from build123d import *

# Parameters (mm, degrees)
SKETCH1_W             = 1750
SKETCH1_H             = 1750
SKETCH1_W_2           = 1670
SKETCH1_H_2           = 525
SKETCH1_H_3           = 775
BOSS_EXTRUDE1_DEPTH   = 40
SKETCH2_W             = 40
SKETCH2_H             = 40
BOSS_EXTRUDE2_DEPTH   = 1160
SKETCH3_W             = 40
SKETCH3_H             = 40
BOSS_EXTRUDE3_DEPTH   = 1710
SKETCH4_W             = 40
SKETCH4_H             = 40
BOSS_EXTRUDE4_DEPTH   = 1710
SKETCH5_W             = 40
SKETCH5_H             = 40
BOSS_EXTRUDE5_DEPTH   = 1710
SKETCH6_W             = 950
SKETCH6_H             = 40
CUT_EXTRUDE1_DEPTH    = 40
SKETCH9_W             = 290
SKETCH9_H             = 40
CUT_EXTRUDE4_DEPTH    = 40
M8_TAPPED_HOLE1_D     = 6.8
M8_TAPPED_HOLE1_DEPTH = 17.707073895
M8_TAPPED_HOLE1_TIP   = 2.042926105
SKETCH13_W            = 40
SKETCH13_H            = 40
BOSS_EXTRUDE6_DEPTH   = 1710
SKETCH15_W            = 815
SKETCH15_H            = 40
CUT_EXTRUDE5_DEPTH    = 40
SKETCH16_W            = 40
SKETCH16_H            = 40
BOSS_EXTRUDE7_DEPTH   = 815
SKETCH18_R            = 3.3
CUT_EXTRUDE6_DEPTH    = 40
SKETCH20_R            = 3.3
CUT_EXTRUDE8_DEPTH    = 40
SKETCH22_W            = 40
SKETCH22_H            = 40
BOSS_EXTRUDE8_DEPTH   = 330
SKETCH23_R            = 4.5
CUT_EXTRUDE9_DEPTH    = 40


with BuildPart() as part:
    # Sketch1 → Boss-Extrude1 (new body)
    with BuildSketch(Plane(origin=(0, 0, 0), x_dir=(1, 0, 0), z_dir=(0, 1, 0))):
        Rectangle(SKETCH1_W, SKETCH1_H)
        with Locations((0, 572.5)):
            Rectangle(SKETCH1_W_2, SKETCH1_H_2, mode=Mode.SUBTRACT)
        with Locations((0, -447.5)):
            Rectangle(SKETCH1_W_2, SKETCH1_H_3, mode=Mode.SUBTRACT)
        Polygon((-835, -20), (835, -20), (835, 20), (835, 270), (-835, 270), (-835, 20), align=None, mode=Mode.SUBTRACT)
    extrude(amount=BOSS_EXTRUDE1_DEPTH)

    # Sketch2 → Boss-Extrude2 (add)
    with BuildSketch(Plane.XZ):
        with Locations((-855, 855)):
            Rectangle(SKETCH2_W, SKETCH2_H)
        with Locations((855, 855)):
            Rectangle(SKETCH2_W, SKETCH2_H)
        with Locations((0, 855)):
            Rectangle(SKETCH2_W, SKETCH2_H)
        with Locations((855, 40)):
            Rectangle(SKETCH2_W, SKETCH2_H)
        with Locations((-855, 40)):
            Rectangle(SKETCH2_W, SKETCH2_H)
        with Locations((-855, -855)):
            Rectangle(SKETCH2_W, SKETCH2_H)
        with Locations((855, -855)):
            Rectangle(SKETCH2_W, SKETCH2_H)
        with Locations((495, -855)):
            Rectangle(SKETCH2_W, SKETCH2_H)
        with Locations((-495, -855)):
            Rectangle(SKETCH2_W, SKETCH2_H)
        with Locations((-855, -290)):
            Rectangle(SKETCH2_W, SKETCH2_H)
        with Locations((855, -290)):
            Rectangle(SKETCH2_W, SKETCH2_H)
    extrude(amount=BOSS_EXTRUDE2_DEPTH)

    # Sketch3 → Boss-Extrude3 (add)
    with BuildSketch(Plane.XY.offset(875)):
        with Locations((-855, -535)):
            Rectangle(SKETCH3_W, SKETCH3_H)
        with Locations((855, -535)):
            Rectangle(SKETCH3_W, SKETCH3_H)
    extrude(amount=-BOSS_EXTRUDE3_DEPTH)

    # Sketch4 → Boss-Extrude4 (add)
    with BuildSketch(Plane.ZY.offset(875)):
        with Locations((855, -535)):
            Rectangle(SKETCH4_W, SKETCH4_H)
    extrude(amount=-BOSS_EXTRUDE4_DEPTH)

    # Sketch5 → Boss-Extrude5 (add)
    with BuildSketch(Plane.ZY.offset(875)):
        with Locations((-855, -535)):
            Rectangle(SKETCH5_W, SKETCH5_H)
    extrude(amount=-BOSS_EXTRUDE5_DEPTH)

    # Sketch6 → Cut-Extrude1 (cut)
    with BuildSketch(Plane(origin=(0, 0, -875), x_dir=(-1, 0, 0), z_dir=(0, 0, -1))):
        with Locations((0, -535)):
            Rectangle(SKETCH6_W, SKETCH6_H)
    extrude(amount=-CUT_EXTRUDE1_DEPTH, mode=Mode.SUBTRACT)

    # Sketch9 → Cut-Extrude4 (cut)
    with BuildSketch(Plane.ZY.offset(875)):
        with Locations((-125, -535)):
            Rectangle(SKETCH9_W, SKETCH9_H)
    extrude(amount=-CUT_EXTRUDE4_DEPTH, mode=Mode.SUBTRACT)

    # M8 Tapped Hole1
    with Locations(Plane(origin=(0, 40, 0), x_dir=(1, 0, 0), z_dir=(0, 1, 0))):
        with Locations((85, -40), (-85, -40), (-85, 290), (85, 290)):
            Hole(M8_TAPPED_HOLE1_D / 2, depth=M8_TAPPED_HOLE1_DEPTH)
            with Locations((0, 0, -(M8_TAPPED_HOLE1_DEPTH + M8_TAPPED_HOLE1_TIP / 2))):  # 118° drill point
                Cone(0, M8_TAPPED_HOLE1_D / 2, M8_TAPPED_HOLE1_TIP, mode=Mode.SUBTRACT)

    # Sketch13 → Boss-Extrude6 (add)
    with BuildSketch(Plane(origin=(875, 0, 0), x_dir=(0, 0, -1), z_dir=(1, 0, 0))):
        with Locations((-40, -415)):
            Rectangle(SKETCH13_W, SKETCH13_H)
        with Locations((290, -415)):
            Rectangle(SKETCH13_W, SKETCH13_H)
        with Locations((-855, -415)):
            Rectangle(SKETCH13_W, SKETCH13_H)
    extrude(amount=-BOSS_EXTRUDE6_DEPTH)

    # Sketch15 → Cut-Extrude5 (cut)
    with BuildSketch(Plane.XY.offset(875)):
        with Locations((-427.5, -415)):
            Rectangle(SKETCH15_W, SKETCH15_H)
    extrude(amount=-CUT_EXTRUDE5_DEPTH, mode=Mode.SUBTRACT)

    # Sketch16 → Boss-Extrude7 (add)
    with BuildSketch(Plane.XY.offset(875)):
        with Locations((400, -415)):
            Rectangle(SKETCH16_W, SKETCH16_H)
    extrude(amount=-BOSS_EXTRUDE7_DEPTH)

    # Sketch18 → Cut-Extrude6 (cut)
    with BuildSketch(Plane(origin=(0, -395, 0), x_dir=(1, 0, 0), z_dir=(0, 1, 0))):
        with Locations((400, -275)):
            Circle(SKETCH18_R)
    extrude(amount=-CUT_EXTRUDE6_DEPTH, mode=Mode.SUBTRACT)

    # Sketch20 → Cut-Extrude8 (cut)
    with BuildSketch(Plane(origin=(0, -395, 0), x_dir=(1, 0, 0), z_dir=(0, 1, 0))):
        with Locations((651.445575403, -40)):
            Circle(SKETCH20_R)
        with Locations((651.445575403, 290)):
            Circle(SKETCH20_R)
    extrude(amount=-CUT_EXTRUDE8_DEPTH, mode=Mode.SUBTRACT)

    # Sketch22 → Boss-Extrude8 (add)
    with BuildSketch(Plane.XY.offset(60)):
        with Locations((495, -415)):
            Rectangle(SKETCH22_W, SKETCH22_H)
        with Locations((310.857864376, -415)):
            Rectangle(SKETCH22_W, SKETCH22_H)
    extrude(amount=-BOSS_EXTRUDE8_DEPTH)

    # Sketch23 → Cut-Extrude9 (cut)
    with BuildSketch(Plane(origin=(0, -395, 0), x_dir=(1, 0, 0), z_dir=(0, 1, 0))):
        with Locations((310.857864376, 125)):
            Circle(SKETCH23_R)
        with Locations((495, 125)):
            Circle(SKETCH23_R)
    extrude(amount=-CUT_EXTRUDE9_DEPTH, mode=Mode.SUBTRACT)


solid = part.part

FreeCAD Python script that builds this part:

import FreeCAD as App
import Part
import Sketcher
from FreeCAD import Vector


def add_polygon(sketch, points):
    """Adds a closed chain of lines whose ends are joined by coincident constraints."""
    first, n = sketch.GeometryCount, len(points)
    for a, b in zip(points, points[1:] + points[:1]):
        sketch.addGeometry(Part.LineSegment(App.Vector(*a, 0), App.Vector(*b, 0)), False)
    for i in range(n):
        sketch.addConstraint(Sketcher.Constraint("Coincident", first + i, 2, first + (i + 1) % n, 1))

doc = App.newDocument("Part")
body = doc.addObject("PartDesign::Body", "Body")

# Sketch on XZ plane
sketch1 = doc.addObject("Sketcher::SketchObject", "Sketch")
body.addObject(sketch1)
sketch1.AttachmentSupport = (doc.XZ_Plane, [""])
sketch1.MapMode = "FlatFace"
add_polygon(sketch1, [(-875, -875), (-875, 875), (875, 875), (875, -875)])  # lines 0-3
add_polygon(sketch1, [(835, 835), (-835, 835), (-835, 60), (835, 60)])  # lines 4-7
add_polygon(sketch1, [(835, 20), (-835, 20), (-835, -270), (835, -270)])  # lines 8-11
add_polygon(sketch1, [(835, -310), (-835, -310), (-835, -835), (835, -835)])  # lines 12-15
sketch1.addConstraint(Sketcher.Constraint("Vertical", 0))
sketch1.addConstraint(Sketcher.Constraint("Horizontal", 1))
sketch1.addConstraint(Sketcher.Constraint("Vertical", 2))
sketch1.addConstraint(Sketcher.Constraint("Horizontal", 3))
sketch1.addConstraint(Sketcher.Constraint("Horizontal", 4))
sketch1.addConstraint(Sketcher.Constraint("Vertical", 5))
sketch1.addConstraint(Sketcher.Constraint("Horizontal", 6))
sketch1.addConstraint(Sketcher.Constraint("Vertical", 7))
sketch1.addConstraint(Sketcher.Constraint("Horizontal", 8))
sketch1.addConstraint(Sketcher.Constraint("Vertical", 9))
sketch1.addConstraint(Sketcher.Constraint("Horizontal", 10))
sketch1.addConstraint(Sketcher.Constraint("Vertical", 11))
sketch1.addConstraint(Sketcher.Constraint("Horizontal", 12))
sketch1.addConstraint(Sketcher.Constraint("Vertical", 13))
sketch1.addConstraint(Sketcher.Constraint("Horizontal", 14))
sketch1.addConstraint(Sketcher.Constraint("Vertical", 15))
sketch1.addConstraint(Sketcher.Constraint("Symmetric", 0, 2, 2, 2, -1, 1))
sketch1.addConstraint(Sketcher.Constraint("Symmetric", 7, 2, 13, 2, -1, 1))
sketch1.addConstraint(Sketcher.Constraint("Vertical", 5, 2, 8, 2))
sketch1.addConstraint(Sketcher.Constraint("Vertical", 7, 2, 10, 2))
sketch1.addConstraint(Sketcher.Constraint("Vertical", 9, 2, 12, 2))
sketch1.addConstraint(Sketcher.Constraint("Vertical", 11, 2, 14, 2))
sketch1.addConstraint(Sketcher.Constraint("Equal", 3, 0))
sketch1.addConstraint(Sketcher.Constraint("DistanceX", 1, 1, 1, 2, 1750.0))
sketch1.addConstraint(Sketcher.Constraint("DistanceX", 4, 2, 4, 1, 1670.0))
sketch1.addConstraint(Sketcher.Constraint("DistanceY", 5, 2, 5, 1, 775.0))
sketch1.addConstraint(Sketcher.Constraint("DistanceY", 9, 2, 9, 1, 290.0))
sketch1.addConstraint(Sketcher.Constraint("DistanceY", 13, 2, 13, 1, 525.0))
sketch1.addConstraint(Sketcher.Constraint("DistanceY", -1, 1, 4, 2, 835.0))
sketch1.addConstraint(Sketcher.Constraint("DistanceY", -1, 1, 8, 2, 20.0))
pad1 = doc.addObject("PartDesign::Pad", "Pad")
body.addObject(pad1)
pad1.Profile = sketch1
pad1.Length = 40
pad1.Reversed = True

# Sketch on XZ plane
sketch2 = doc.addObject("Sketcher::SketchObject", "Sketch001")
body.addObject(sketch2)
sketch2.AttachmentSupport = (doc.XZ_Plane, [""])
sketch2.MapMode = "FlatFace"
add_polygon(sketch2, [(-875, 875), (-875, 835), (-835, 835), (-835, 875)])  # lines 0-3
add_polygon(sketch2, [(835, 875), (835, 835), (875, 835), (875, 875)])  # lines 4-7
add_polygon(sketch2, [(-20, 875), (-20, 835), (20, 835), (20, 875)])  # lines 8-11
add_polygon(sketch2, [(835, 60), (835, 20), (875, 20), (875, 60)])  # lines 12-15
add_polygon(sketch2, [(-875, 60), (-875, 20), (-835, 20), (-835, 60)])  # lines 16-19
add_polygon(sketch2, [(-875, -835), (-875, -875), (-835, -875), (-835, -835)])  # lines 20-23
add_polygon(sketch2, [(835, -835), (835, -875), (875, -875), (875, -835)])  # lines 24-27
add_polygon(sketch2, [(475, -835), (475, -875), (515, -875), (515, -835)])  # lines 28-31
add_polygon(sketch2, [(-515, -835), (-515, -875), (-475, -875), (-475, -835)])  # lines 32-35
add_polygon(sketch2, [(-875, -270), (-875, -310), (-835, -310), (-835, -270)])  # lines 36-39
add_polygon(sketch2, [(835, -270), (835, -310), (875, -310), (875, -270)])  # lines 40-43
sketch2.addConstraint(Sketcher.Constraint("Vertical", 0))
sketch2.addConstraint(Sketcher.Constraint("Horizontal", 1))
sketch2.addConstraint(Sketcher.Constraint("Vertical", 2))
sketch2.addConstraint(Sketcher.Constraint("Horizontal", 3))
sketch2.addConstraint(Sketcher.Constraint("Vertical", 4))
sketch2.addConstraint(Sketcher.Constraint("Horizontal", 5))
sketch2.addConstraint(Sketcher.Constraint("Vertical", 6))
sketch2.addConstraint(Sketcher.Constraint("Horizontal", 7))
sketch2.addConstraint(Sketcher.Constraint("Vertical", 8))
sketch2.addConstraint(Sketcher.Constraint("Horizontal", 9))
sketch2.addConstraint(Sketcher.Constraint("Vertical", 10))
sketch2.addConstraint(Sketcher.Constraint("Horizontal", 11))
sketch2.addConstraint(Sketcher.Constraint("Vertical", 12))
sketch2.addConstraint(Sketcher.Constraint("Horizontal", 13))
sketch2.addConstraint(Sketcher.Constraint("Vertical", 14))
sketch2.addConstraint(Sketcher.Constraint("Horizontal", 15))
sketch2.addConstraint(Sketcher.Constraint("Vertical", 16))
sketch2.addConstraint(Sketcher.Constraint("Horizontal", 17))
sketch2.addConstraint(Sketcher.Constraint("Vertical", 18))
sketch2.addConstraint(Sketcher.Constraint("Horizontal", 19))
sketch2.addConstraint(Sketcher.Constraint("Vertical", 20))
sketch2.addConstraint(Sketcher.Constraint("Horizontal", 21))
sketch2.addConstraint(Sketcher.Constraint("Vertical", 22))
sketch2.addConstraint(Sketcher.Constraint("Horizontal", 23))
sketch2.addConstraint(Sketcher.Constraint("Vertical", 24))
sketch2.addConstraint(Sketcher.Constraint("Horizontal", 25))
sketch2.addConstraint(Sketcher.Constraint("Vertical", 26))
sketch2.addConstraint(Sketcher.Constraint("Horizontal", 27))
sketch2.addConstraint(Sketcher.Constraint("Vertical", 28))
sketch2.addConstraint(Sketcher.Constraint("Horizontal", 29))
sketch2.addConstraint(Sketcher.Constraint("Vertical", 30))
sketch2.addConstraint(Sketcher.Constraint("Horizontal", 31))
sketch2.addConstraint(Sketcher.Constraint("Vertical", 32))
sketch2.addConstraint(Sketcher.Constraint("Horizontal", 33))
sketch2.addConstraint(Sketcher.Constraint("Vertical", 34))
sketch2.addConstraint(Sketcher.Constraint("Horizontal", 35))
sketch2.addConstraint(Sketcher.Constraint("Vertical", 36))
sketch2.addConstraint(Sketcher.Constraint("Horizontal", 37))
sketch2.addConstraint(Sketcher.Constraint("Vertical", 38))
sketch2.addConstraint(Sketcher.Constraint("Horizontal", 39))
sketch2.addConstraint(Sketcher.Constraint("Vertical", 40))
sketch2.addConstraint(Sketcher.Constraint("Horizontal", 41))
sketch2.addConstraint(Sketcher.Constraint("Vertical", 42))
sketch2.addConstraint(Sketcher.Constraint("Horizontal", 43))
sketch2.addConstraint(Sketcher.Constraint("Symmetric", 6, 2, 20, 2, -1, 1))
sketch2.addConstraint(Sketcher.Constraint("Symmetric", 4, 2, 22, 2, -1, 1))
sketch2.addConstraint(Sketcher.Constraint("Symmetric", 2, 2, 24, 2, -1, 1))
sketch2.addConstraint(Sketcher.Constraint("Symmetric", 0, 2, 26, 2, -1, 1))
sketch2.addConstraint(Sketcher.Constraint("Symmetric", 1, 2, 4, 2, -2))
sketch2.addConstraint(Sketcher.Constraint("Symmetric", 3, 2, 6, 2, -2))
sketch2.addConstraint(Sketcher.Constraint("Symmetric", 13, 2, 16, 2, -2))
sketch2.addConstraint(Sketcher.Constraint("Symmetric", 15, 2, 18, 2, -2))
sketch2.addConstraint(Sketcher.Constraint("Symmetric", 29, 2, 32, 2, -2))
sketch2.addConstraint(Sketcher.Constraint("Symmetric", 31, 2, 34, 2, -2))
sketch2.addConstraint(Sketcher.Constraint("Symmetric", 37, 2, 40, 2, -2))
sketch2.addConstraint(Sketcher.Constraint("Symmetric", 39, 2, 42, 2, -2))
sketch2.addConstraint(Sketcher.Constraint("Horizontal", 5, 2, 8, 2))
sketch2.addConstraint(Sketcher.Constraint("Horizontal", 7, 2, 10, 2))
sketch2.addConstraint(Sketcher.Constraint("Horizontal", 25, 2, 28, 2))
sketch2.addConstraint(Sketcher.Constraint("Horizontal", 27, 2, 30, 2))
sketch2.addConstraint(Sketcher.Constraint("Vertical", 7, 2, 12, 2))
sketch2.addConstraint(Sketcher.Constraint("Vertical", 6, 2, 13, 2))
sketch2.addConstraint(Sketcher.Constraint("Vertical", 23, 2, 36, 2))
sketch2.addConstraint(Sketcher.Constraint("Vertical", 22, 2, 37, 2))
sketch2.addConstraint(Sketcher.Constraint("Equal", 7, 9))
sketch2.addConstraint(Sketcher.Constraint("Equal", 27, 29))
sketch2.addConstraint(Sketcher.Constraint("Equal", 43, 0))
sketch2.addConstraint(Sketcher.Constraint("Equal", 10, 12))
sketch2.addConstraint(Sketcher.Constraint("Equal", 34, 36))
sketch2.addConstraint(Sketcher.Constraint("DistanceX", 1, 1, 1, 2, 40.0))
sketch2.addConstraint(Sketcher.Constraint("DistanceX", 0, 2, -1, 1, 875.0))
sketch2.addConstraint(Sketcher.Constraint("DistanceY", -1, 1, 0, 2, 835.0))
sketch2.addConstraint(Sketcher.Constraint("DistanceX", 8, 2, -1, 1, 20.0))
sketch2.addConstraint(Sketcher.Constraint("DistanceY", -1, 1, 12, 2, 20.0))
sketch2.addConstraint(Sketcher.Constraint("DistanceX", -1, 1, 28, 2, 475.0))
sketch2.addConstraint(Sketcher.Constraint("DistanceY", 36, 2, -1, 1, 310.0))
pad2 = doc.addObject("PartDesign::Pad", "Pad001")
body.addObject(pad2)
pad2.Profile = sketch2
pad2.Length = 1160

# Sketch on XY plane
sketch3 = doc.addObject("Sketcher::SketchObject", "Sketch002")
body.addObject(sketch3)
sketch3.AttachmentSupport = (doc.XY_Plane, [""])
sketch3.MapMode = "FlatFace"
sketch3.AttachmentOffset = App.Placement(Vector(0, 0, 875), App.Rotation())
add_polygon(sketch3, [(-875, -515), (-875, -555), (-835, -555), (-835, -515)])  # lines 0-3
add_polygon(sketch3, [(835, -515), (835, -555), (875, -555), (875, -515)])  # lines 4-7
sketch3.addConstraint(Sketcher.Constraint("Vertical", 0))
sketch3.addConstraint(Sketcher.Constraint("Horizontal", 1))
sketch3.addConstraint(Sketcher.Constraint("Vertical", 2))
sketch3.addConstraint(Sketcher.Constraint("Horizontal", 3))
sketch3.addConstraint(Sketcher.Constraint("Vertical", 4))
sketch3.addConstraint(Sketcher.Constraint("Horizontal", 5))
sketch3.addConstraint(Sketcher.Constraint("Vertical", 6))
sketch3.addConstraint(Sketcher.Constraint("Horizontal", 7))
sketch3.addConstraint(Sketcher.Constraint("Symmetric", 1, 2, 4, 2, -2))
sketch3.addConstraint(Sketcher.Constraint("Symmetric", 3, 2, 6, 2, -2))
sketch3.addConstraint(Sketcher.Constraint("Equal", 7, 0))
sketch3.addConstraint(Sketcher.Constraint("DistanceX", 1, 1, 1, 2, 40.0))
sketch3.addConstraint(Sketcher.Constraint("DistanceX", 0, 2, -1, 1, 875.0))
sketch3.addConstraint(Sketcher.Constraint("DistanceY", 0, 2, -1, 1, 555.0))
pad3 = doc.addObject("PartDesign::Pad", "Pad002")
body.addObject(pad3)
pad3.Profile = sketch3
pad3.Length = 1710
pad3.Reversed = True

# Sketch on YZ plane
sketch4 = doc.addObject("Sketcher::SketchObject", "Sketch003")
body.addObject(sketch4)
sketch4.AttachmentSupport = (doc.YZ_Plane, [""])
sketch4.MapMode = "FlatFace"
sketch4.AttachmentOffset = App.Placement(Vector(0, 0, -875), App.Rotation())
add_polygon(sketch4, [(-515, 835), (-555, 835), (-555, 875), (-515, 875)])  # lines 0-3
sketch4.addConstraint(Sketcher.Constraint("Horizontal", 0))
sketch4.addConstraint(Sketcher.Constraint("Vertical", 1))
sketch4.addConstraint(Sketcher.Constraint("Horizontal", 2))
sketch4.addConstraint(Sketcher.Constraint("Vertical", 3))
sketch4.addConstraint(Sketcher.Constraint("Equal", 2, 1))
sketch4.addConstraint(Sketcher.Constraint("DistanceX", 0, 2, 0, 1, 40.0))
sketch4.addConstraint(Sketcher.Constraint("DistanceX", 0, 2, -1, 1, 555.0))
sketch4.addConstraint(Sketcher.Constraint("DistanceY", -1, 1, 0, 2, 835.0))
pad4 = doc.addObject("PartDesign::Pad", "Pad003")
body.addObject(pad4)
pad4.Profile = sketch4
pad4.Length = 1710

# Sketch on YZ plane
sketch5 = doc.addObject("Sketcher::SketchObject", "Sketch004")
body.addObject(sketch5)
sketch5.AttachmentSupport = (doc.YZ_Plane, [""])
sketch5.MapMode = "FlatFace"
sketch5.AttachmentOffset = App.Placement(Vector(0, 0, -875), App.Rotation())
add_polygon(sketch5, [(-515, -875), (-555, -875), (-555, -835), (-515, -835)])  # lines 0-3
sketch5.addConstraint(Sketcher.Constraint("Horizontal", 0))
sketch5.addConstraint(Sketcher.Constraint("Vertical", 1))
sketch5.addConstraint(Sketcher.Constraint("Horizontal", 2))
sketch5.addConstraint(Sketcher.Constraint("Vertical", 3))
sketch5.addConstraint(Sketcher.Constraint("Equal", 2, 1))
sketch5.addConstraint(Sketcher.Constraint("DistanceX", 0, 2, 0, 1, 40.0))
sketch5.addConstraint(Sketcher.Constraint("DistanceX", 0, 2, -1, 1, 555.0))
sketch5.addConstraint(Sketcher.Constraint("DistanceY", 0, 2, -1, 1, 875.0))
pad5 = doc.addObject("PartDesign::Pad", "Pad004")
body.addObject(pad5)
pad5.Profile = sketch5
pad5.Length = 1710

# Sketch on XY plane
sketch6 = doc.addObject("Sketcher::SketchObject", "Sketch005")
body.addObject(sketch6)
sketch6.AttachmentSupport = (doc.XY_Plane, [""])
sketch6.MapMode = "FlatFace"
sketch6.AttachmentOffset = App.Placement(Vector(0, 0, -875), App.Rotation())
add_polygon(sketch6, [(475, -515), (475, -555), (-475, -555), (-475, -515)])  # lines 0-3
sketch6.addConstraint(Sketcher.Constraint("Vertical", 0))
sketch6.addConstraint(Sketcher.Constraint("Horizontal", 1))
sketch6.addConstraint(Sketcher.Constraint("Vertical", 2))
sketch6.addConstraint(Sketcher.Constraint("Horizontal", 3))
sketch6.addConstraint(Sketcher.Constraint("DistanceX", 1, 2, 1, 1, 950.0))
sketch6.addConstraint(Sketcher.Constraint("DistanceY", 0, 2, 0, 1, 40.0))
sketch6.addConstraint(Sketcher.Constraint("DistanceX", -1, 1, 0, 2, 475.0))
sketch6.addConstraint(Sketcher.Constraint("DistanceY", 0, 2, -1, 1, 555.0))
pocket1 = doc.addObject("PartDesign::Pocket", "Pocket")
body.addObject(pocket1)
pocket1.Profile = sketch6
pocket1.Length = 40
pocket1.Reversed = True

# Sketch on YZ plane
sketch7 = doc.addObject("Sketcher::SketchObject", "Sketch006")
body.addObject(sketch7)
sketch7.AttachmentSupport = (doc.YZ_Plane, [""])
sketch7.MapMode = "FlatFace"
sketch7.AttachmentOffset = App.Placement(Vector(0, 0, -875), App.Rotation())
add_polygon(sketch7, [(-515, -270), (-555, -270), (-555, 20), (-515, 20)])  # lines 0-3
sketch7.addConstraint(Sketcher.Constraint("Horizontal", 0))
sketch7.addConstraint(Sketcher.Constraint("Vertical", 1))
sketch7.addConstraint(Sketcher.Constraint("Horizontal", 2))
sketch7.addConstraint(Sketcher.Constraint("Vertical", 3))
sketch7.addConstraint(Sketcher.Constraint("DistanceX", 0, 2, 0, 1, 40.0))
sketch7.addConstraint(Sketcher.Constraint("DistanceY", 1, 1, 1, 2, 290.0))
sketch7.addConstraint(Sketcher.Constraint("DistanceX", 0, 2, -1, 1, 555.0))
sketch7.addConstraint(Sketcher.Constraint("DistanceY", 0, 2, -1, 1, 270.0))
pocket2 = doc.addObject("PartDesign::Pocket", "Pocket001")
body.addObject(pocket2)
pocket2.Profile = sketch7
pocket2.Length = 40
pocket2.Reversed = True

# Sketch on XZ plane
sketch8 = doc.addObject("Sketcher::SketchObject", "Sketch007")
body.addObject(sketch8)
sketch8.AttachmentSupport = (doc.XZ_Plane, [""])
sketch8.MapMode = "FlatFace"
sketch8.AttachmentOffset = App.Placement(Vector(0, 0, -40), App.Rotation())
sketch8.addGeometry(Part.Circle(Vector(85, 40, 0), Vector(0, 0, 1), 3.4), False)
sketch8.addGeometry(Part.Circle(Vector(-85, 40, 0), Vector(0, 0, 1), 3.4), False)
sketch8.addGeometry(Part.Circle(Vector(-85, -290, 0), Vector(0, 0, 1), 3.4), False)
sketch8.addGeometry(Part.Circle(Vector(85, -290, 0), Vector(0, 0, 1), 3.4), False)
sketch8.addConstraint(Sketcher.Constraint("Equal", 0, 1))
sketch8.addConstraint(Sketcher.Constraint("Equal", 1, 2))
sketch8.addConstraint(Sketcher.Constraint("Equal", 2, 3))
sketch8.addConstraint(Sketcher.Constraint("Symmetric", 0, 3, 1, 3, -2))
sketch8.addConstraint(Sketcher.Constraint("Symmetric", 2, 3, 3, 3, -2))
sketch8.addConstraint(Sketcher.Constraint("Vertical", 1, 3, 2, 3))
sketch8.addConstraint(Sketcher.Constraint("Diameter", 0, 6.8))
sketch8.addConstraint(Sketcher.Constraint("DistanceX", -1, 1, 0, 3, 85.0))
sketch8.addConstraint(Sketcher.Constraint("DistanceY", -1, 1, 0, 3, 40.0))
sketch8.addConstraint(Sketcher.Constraint("DistanceY", 2, 3, -1, 1, 290.0))
doc.recompute()
hole = doc.addObject("PartDesign::Hole", "Hole")
body.addObject(hole)
hole.Profile = sketch8
hole.ThreadType = "None"
hole.Diameter = 6.8
hole.DepthType = "Dimension"
hole.Depth = 17.707074
hole.DrillPoint = "Angled"
hole.DrillPointAngle = 118
hole.Reversed = True

# Sketch on YZ plane
sketch9 = doc.addObject("Sketcher::SketchObject", "Sketch008")
body.addObject(sketch9)
sketch9.AttachmentSupport = (doc.YZ_Plane, [""])
sketch9.MapMode = "FlatFace"
sketch9.AttachmentOffset = App.Placement(Vector(0, 0, 875), App.Rotation())
add_polygon(sketch9, [(-395, 60), (-435, 60), (-435, 20), (-395, 20)])  # lines 0-3
add_polygon(sketch9, [(-395, -270), (-435, -270), (-435, -310), (-395, -310)])  # lines 4-7
add_polygon(sketch9, [(-395, 875), (-435, 875), (-435, 835), (-395, 835)])  # lines 8-11
sketch9.addConstraint(Sketcher.Constraint("Horizontal", 0))
sketch9.addConstraint(Sketcher.Constraint("Vertical", 1))
sketch9.addConstraint(Sketcher.Constraint("Horizontal", 2))
sketch9.addConstraint(Sketcher.Constraint("Vertical", 3))
sketch9.addConstraint(Sketcher.Constraint("Horizontal", 4))
sketch9.addConstraint(Sketcher.Constraint("Vertical", 5))
sketch9.addConstraint(Sketcher.Constraint("Horizontal", 6))
sketch9.addConstraint(Sketcher.Constraint("Vertical", 7))
sketch9.addConstraint(Sketcher.Constraint("Horizontal", 8))
sketch9.addConstraint(Sketcher.Constraint("Vertical", 9))
sketch9.addConstraint(Sketcher.Constraint("Horizontal", 10))
sketch9.addConstraint(Sketcher.Constraint("Vertical", 11))
sketch9.addConstraint(Sketcher.Constraint("Vertical", 1, 2, 4, 2))
sketch9.addConstraint(Sketcher.Constraint("Vertical", 3, 2, 6, 2))
sketch9.addConstraint(Sketcher.Constraint("Vertical", 5, 2, 8, 2))
sketch9.addConstraint(Sketcher.Constraint("Vertical", 7, 2, 10, 2))
sketch9.addConstraint(Sketcher.Constraint("Equal", 10, 1))
sketch9.addConstraint(Sketcher.Constraint("Equal", 3, 5))
sketch9.addConstraint(Sketcher.Constraint("Equal", 7, 9))
sketch9.addConstraint(Sketcher.Constraint("DistanceX", 0, 2, 0, 1, 40.0))
sketch9.addConstraint(Sketcher.Constraint("DistanceX", 0, 2, -1, 1, 435.0))
sketch9.addConstraint(Sketcher.Constraint("DistanceY", -1, 1, 0, 2, 60.0))
sketch9.addConstraint(Sketcher.Constraint("DistanceY", 4, 2, -1, 1, 270.0))
sketch9.addConstraint(Sketcher.Constraint("DistanceY", -1, 1, 8, 2, 875.0))
pad6 = doc.addObject("PartDesign::Pad", "Pad005")
body.addObject(pad6)
pad6.Profile = sketch9
pad6.Length = 1710
pad6.Reversed = True

# Sketch on XY plane
sketch10 = doc.addObject("Sketcher::SketchObject", "Sketch009")
body.addObject(sketch10)
sketch10.AttachmentSupport = (doc.XY_Plane, [""])
sketch10.MapMode = "FlatFace"
sketch10.AttachmentOffset = App.Placement(Vector(0, 0, 875), App.Rotation())
add_polygon(sketch10, [(-835, -395), (-835, -435), (-20, -435), (-20, -395)])  # lines 0-3
sketch10.addConstraint(Sketcher.Constraint("Vertical", 0))
sketch10.addConstraint(Sketcher.Constraint("Horizontal", 1))
sketch10.addConstraint(Sketcher.Constraint("Vertical", 2))
sketch10.addConstraint(Sketcher.Constraint("Horizontal", 3))
sketch10.addConstraint(Sketcher.Constraint("DistanceX", 1, 1, 1, 2, 815.0))
sketch10.addConstraint(Sketcher.Constraint("DistanceY", 0, 2, 0, 1, 40.0))
sketch10.addConstraint(Sketcher.Constraint("DistanceX", 0, 2, -1, 1, 835.0))
sketch10.addConstraint(Sketcher.Constraint("DistanceY", 0, 2, -1, 1, 435.0))
pocket3 = doc.addObject("PartDesign::Pocket", "Pocket002")
body.addObject(pocket3)
pocket3.Profile = sketch10
pocket3.Length = 40

# Sketch on XY plane
sketch11 = doc.addObject("Sketcher::SketchObject", "Sketch010")
body.addObject(sketch11)
sketch11.AttachmentSupport = (doc.XY_Plane, [""])
sketch11.MapMode = "FlatFace"
sketch11.AttachmentOffset = App.Placement(Vector(0, 0, 875), App.Rotation())
add_polygon(sketch11, [(380, -395), (380, -435), (420, -435), (420, -395)])  # lines 0-3
sketch11.addConstraint(Sketcher.Constraint("Vertical", 0))
sketch11.addConstraint(Sketcher.Constraint("Horizontal", 1))
sketch11.addConstraint(Sketcher.Constraint("Vertical", 2))
sketch11.addConstraint(Sketcher.Constraint("Horizontal", 3))
sketch11.addConstraint(Sketcher.Constraint("Equal", 3, 0))
sketch11.addConstraint(Sketcher.Constraint("DistanceX", 1, 1, 1, 2, 40.0))
sketch11.addConstraint(Sketcher.Constraint("DistanceX", -1, 1, 0, 2, 380.0))
sketch11.addConstraint(Sketcher.Constraint("DistanceY", 0, 2, -1, 1, 435.0))
pad7 = doc.addObject("PartDesign::Pad", "Pad006")
body.addObject(pad7)
pad7.Profile = sketch11
pad7.Length = 815
pad7.Reversed = True

# Sketch on XZ plane
sketch12 = doc.addObject("Sketcher::SketchObject", "Sketch011")
body.addObject(sketch12)
sketch12.AttachmentSupport = (doc.XZ_Plane, [""])
sketch12.MapMode = "FlatFace"
sketch12.AttachmentOffset = App.Placement(Vector(0, 0, 395), App.Rotation())
sketch12.addGeometry(Part.Circle(Vector(400, 275, 0), Vector(0, 0, 1), 3.3), False)
sketch12.addConstraint(Sketcher.Constraint("Diameter", 0, 6.6))
sketch12.addConstraint(Sketcher.Constraint("DistanceX", -1, 1, 0, 3, 400.0))
sketch12.addConstraint(Sketcher.Constraint("DistanceY", -1, 1, 0, 3, 275.0))
pocket4 = doc.addObject("PartDesign::Pocket", "Pocket003")
body.addObject(pocket4)
pocket4.Profile = sketch12
pocket4.Length = 40
pocket4.Reversed = True

# Sketch on XZ plane
sketch13 = doc.addObject("Sketcher::SketchObject", "Sketch012")
body.addObject(sketch13)
sketch13.AttachmentSupport = (doc.XZ_Plane, [""])
sketch13.MapMode = "FlatFace"
sketch13.AttachmentOffset = App.Placement(Vector(0, 0, 395), App.Rotation())
sketch13.addGeometry(Part.Circle(Vector(651.4, 40, 0), Vector(0, 0, 1), 3.3), False)
sketch13.addGeometry(Part.Circle(Vector(651.4, -290, 0), Vector(0, 0, 1), 3.3), False)
sketch13.addConstraint(Sketcher.Constraint("Equal", 0, 1))
sketch13.addConstraint(Sketcher.Constraint("Vertical", 0, 3, 1, 3))
sketch13.addConstraint(Sketcher.Constraint("Diameter", 0, 6.6))
sketch13.addConstraint(Sketcher.Constraint("DistanceY", -1, 1, 0, 3, 40.0))
sketch13.addConstraint(Sketcher.Constraint("DistanceY", 1, 3, -1, 1, 290.0))
sketch13.addConstraint(Sketcher.Constraint("DistanceX", -1, 1, 0, 3, 651.445575))
pocket5 = doc.addObject("PartDesign::Pocket", "Pocket004")
body.addObject(pocket5)
pocket5.Profile = sketch13
pocket5.Length = 40
pocket5.Reversed = True

# Sketch on XY plane
sketch14 = doc.addObject("Sketcher::SketchObject", "Sketch013")
body.addObject(sketch14)
sketch14.AttachmentSupport = (doc.XY_Plane, [""])
sketch14.MapMode = "FlatFace"
sketch14.AttachmentOffset = App.Placement(Vector(0, 0, 60), App.Rotation())
add_polygon(sketch14, [(475, -395), (475, -435), (515, -435), (515, -395)])  # lines 0-3
add_polygon(sketch14, [(291, -395), (291, -435), (331, -435), (331, -395)])  # lines 4-7
sketch14.addConstraint(Sketcher.Constraint("Vertical", 0))
sketch14.addConstraint(Sketcher.Constraint("Horizontal", 1))
sketch14.addConstraint(Sketcher.Constraint("Vertical", 2))
sketch14.addConstraint(Sketcher.Constraint("Horizontal", 3))
sketch14.addConstraint(Sketcher.Constraint("Vertical", 4))
sketch14.addConstraint(Sketcher.Constraint("Horizontal", 5))
sketch14.addConstraint(Sketcher.Constraint("Vertical", 6))
sketch14.addConstraint(Sketcher.Constraint("Horizontal", 7))
sketch14.addConstraint(Sketcher.Constraint("Horizontal", 1, 2, 4, 2))
sketch14.addConstraint(Sketcher.Constraint("Horizontal", 3, 2, 6, 2))
sketch14.addConstraint(Sketcher.Constraint("Equal", 3, 5))
sketch14.addConstraint(Sketcher.Constraint("Equal", 7, 0))
sketch14.addConstraint(Sketcher.Constraint("DistanceX", 1, 1, 1, 2, 40.0))
sketch14.addConstraint(Sketcher.Constraint("DistanceX", -1, 1, 0, 2, 475.0))
sketch14.addConstraint(Sketcher.Constraint("DistanceY", 0, 2, -1, 1, 435.0))
sketch14.addConstraint(Sketcher.Constraint("DistanceX", -1, 1, 4, 2, 290.857864))
pad8 = doc.addObject("PartDesign::Pad", "Pad007")
body.addObject(pad8)
pad8.Profile = sketch14
pad8.Length = 330
pad8.Reversed = True

# Sketch on XZ plane
sketch15 = doc.addObject("Sketcher::SketchObject", "Sketch014")
body.addObject(sketch15)
sketch15.AttachmentSupport = (doc.XZ_Plane, [""])
sketch15.MapMode = "FlatFace"
sketch15.AttachmentOffset = App.Placement(Vector(0, 0, 395), App.Rotation())
sketch15.addGeometry(Part.Circle(Vector(310.9, -125, 0), Vector(0, 0, 1), 4.5), False)
sketch15.addGeometry(Part.Circle(Vector(495, -125, 0), Vector(0, 0, 1), 4.5), False)
sketch15.addConstraint(Sketcher.Constraint("Equal", 0, 1))
sketch15.addConstraint(Sketcher.Constraint("Horizontal", 0, 3, 1, 3))
sketch15.addConstraint(Sketcher.Constraint("Diameter", 0, 9.0))
sketch15.addConstraint(Sketcher.Constraint("DistanceY", 0, 3, -1, 1, 125.0))
sketch15.addConstraint(Sketcher.Constraint("DistanceX", -1, 1, 1, 3, 495.0))
sketch15.addConstraint(Sketcher.Constraint("DistanceX", -1, 1, 0, 3, 310.857864))
pocket6 = doc.addObject("PartDesign::Pocket", "Pocket005")
body.addObject(pocket6)
pocket6.Profile = sketch15
pocket6.Length = 40
pocket6.Reversed = True

doc.recompute()
